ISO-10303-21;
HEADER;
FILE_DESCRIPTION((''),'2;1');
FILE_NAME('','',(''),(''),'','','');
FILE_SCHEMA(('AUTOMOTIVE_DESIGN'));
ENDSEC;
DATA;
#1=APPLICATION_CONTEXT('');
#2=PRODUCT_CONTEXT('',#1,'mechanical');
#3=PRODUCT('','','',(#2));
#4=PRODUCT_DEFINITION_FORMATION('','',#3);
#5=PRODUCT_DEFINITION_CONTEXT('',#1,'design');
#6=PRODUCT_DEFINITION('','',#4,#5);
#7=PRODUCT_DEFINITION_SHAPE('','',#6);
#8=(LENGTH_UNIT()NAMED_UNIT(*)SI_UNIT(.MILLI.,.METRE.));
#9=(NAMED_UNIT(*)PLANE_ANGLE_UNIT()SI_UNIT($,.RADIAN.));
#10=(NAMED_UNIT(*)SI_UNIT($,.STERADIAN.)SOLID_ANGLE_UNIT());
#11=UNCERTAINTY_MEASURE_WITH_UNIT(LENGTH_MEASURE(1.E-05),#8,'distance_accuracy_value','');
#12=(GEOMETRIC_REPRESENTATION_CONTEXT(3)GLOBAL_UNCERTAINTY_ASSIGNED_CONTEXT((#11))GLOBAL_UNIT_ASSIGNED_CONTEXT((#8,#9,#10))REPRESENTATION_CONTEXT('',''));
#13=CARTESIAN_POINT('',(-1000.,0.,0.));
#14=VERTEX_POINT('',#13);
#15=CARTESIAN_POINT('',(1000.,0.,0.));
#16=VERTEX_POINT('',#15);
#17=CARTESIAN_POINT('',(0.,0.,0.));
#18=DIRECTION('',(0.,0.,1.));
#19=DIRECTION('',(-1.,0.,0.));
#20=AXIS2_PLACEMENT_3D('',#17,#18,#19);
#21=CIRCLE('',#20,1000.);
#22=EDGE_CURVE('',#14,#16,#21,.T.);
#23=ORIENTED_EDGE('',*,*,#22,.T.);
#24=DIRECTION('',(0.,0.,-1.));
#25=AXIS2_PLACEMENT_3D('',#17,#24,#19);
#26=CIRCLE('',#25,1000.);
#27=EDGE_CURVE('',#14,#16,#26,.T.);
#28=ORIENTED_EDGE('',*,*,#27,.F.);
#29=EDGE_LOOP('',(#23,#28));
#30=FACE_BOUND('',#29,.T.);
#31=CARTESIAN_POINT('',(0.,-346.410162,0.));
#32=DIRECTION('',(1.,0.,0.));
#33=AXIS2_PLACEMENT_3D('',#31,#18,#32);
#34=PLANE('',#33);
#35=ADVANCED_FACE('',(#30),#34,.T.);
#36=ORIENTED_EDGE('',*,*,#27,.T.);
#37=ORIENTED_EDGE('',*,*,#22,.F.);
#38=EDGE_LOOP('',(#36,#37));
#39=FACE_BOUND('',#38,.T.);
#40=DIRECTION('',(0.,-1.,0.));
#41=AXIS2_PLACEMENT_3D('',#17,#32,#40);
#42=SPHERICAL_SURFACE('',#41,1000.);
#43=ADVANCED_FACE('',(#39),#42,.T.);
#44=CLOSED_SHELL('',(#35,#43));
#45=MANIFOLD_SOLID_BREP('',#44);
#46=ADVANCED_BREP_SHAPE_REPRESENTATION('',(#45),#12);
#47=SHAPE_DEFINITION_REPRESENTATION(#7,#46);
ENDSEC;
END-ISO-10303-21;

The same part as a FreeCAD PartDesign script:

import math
import FreeCAD as App
import Part
import Sketcher
from FreeCAD import Vector

doc = App.newDocument("Part")
body = doc.addObject("PartDesign::Body", "Body")

sketch1 = doc.addObject("Sketcher::SketchObject", "Sketch")
body.addObject(sketch1)
sketch1.AttachmentSupport = (doc.XY_Plane, [""])
sketch1.MapMode = "FlatFace"
sketch1.addGeometry(Part.ArcOfCircle(Part.Circle(Vector(0, 0, 0), Vector(0, 0, 1), 1000), math.radians(180), math.radians(360)), False)
sketch1.addGeometry(Part.LineSegment(Vector(1000, 0, 0), Vector(-1000, 0, 0)), False)
sketch1.addConstraint(Sketcher.Constraint("Coincident", 0, 1, 1, 2))
sketch1.addConstraint(Sketcher.Constraint("Coincident", 1, 1, 0, 2))
sketch1.addConstraint(Sketcher.Constraint("Horizontal", 1))
sketch1.addConstraint(Sketcher.Constraint("Coincident", 0, 3, -1, 1))
sketch1.addConstraint(Sketcher.Constraint("PointOnObject", 1, 1, -1))
sketch1.addConstraint(Sketcher.Constraint("Radius", 0, 1000.0))
revolution = doc.addObject("PartDesign::Revolution", "Revolution")
body.addObject(revolution)
revolution.Profile = sketch1
revolution.ReferenceAxis = (sketch1, ["H_Axis"])
revolution.Angle = 180

doc.recompute()
